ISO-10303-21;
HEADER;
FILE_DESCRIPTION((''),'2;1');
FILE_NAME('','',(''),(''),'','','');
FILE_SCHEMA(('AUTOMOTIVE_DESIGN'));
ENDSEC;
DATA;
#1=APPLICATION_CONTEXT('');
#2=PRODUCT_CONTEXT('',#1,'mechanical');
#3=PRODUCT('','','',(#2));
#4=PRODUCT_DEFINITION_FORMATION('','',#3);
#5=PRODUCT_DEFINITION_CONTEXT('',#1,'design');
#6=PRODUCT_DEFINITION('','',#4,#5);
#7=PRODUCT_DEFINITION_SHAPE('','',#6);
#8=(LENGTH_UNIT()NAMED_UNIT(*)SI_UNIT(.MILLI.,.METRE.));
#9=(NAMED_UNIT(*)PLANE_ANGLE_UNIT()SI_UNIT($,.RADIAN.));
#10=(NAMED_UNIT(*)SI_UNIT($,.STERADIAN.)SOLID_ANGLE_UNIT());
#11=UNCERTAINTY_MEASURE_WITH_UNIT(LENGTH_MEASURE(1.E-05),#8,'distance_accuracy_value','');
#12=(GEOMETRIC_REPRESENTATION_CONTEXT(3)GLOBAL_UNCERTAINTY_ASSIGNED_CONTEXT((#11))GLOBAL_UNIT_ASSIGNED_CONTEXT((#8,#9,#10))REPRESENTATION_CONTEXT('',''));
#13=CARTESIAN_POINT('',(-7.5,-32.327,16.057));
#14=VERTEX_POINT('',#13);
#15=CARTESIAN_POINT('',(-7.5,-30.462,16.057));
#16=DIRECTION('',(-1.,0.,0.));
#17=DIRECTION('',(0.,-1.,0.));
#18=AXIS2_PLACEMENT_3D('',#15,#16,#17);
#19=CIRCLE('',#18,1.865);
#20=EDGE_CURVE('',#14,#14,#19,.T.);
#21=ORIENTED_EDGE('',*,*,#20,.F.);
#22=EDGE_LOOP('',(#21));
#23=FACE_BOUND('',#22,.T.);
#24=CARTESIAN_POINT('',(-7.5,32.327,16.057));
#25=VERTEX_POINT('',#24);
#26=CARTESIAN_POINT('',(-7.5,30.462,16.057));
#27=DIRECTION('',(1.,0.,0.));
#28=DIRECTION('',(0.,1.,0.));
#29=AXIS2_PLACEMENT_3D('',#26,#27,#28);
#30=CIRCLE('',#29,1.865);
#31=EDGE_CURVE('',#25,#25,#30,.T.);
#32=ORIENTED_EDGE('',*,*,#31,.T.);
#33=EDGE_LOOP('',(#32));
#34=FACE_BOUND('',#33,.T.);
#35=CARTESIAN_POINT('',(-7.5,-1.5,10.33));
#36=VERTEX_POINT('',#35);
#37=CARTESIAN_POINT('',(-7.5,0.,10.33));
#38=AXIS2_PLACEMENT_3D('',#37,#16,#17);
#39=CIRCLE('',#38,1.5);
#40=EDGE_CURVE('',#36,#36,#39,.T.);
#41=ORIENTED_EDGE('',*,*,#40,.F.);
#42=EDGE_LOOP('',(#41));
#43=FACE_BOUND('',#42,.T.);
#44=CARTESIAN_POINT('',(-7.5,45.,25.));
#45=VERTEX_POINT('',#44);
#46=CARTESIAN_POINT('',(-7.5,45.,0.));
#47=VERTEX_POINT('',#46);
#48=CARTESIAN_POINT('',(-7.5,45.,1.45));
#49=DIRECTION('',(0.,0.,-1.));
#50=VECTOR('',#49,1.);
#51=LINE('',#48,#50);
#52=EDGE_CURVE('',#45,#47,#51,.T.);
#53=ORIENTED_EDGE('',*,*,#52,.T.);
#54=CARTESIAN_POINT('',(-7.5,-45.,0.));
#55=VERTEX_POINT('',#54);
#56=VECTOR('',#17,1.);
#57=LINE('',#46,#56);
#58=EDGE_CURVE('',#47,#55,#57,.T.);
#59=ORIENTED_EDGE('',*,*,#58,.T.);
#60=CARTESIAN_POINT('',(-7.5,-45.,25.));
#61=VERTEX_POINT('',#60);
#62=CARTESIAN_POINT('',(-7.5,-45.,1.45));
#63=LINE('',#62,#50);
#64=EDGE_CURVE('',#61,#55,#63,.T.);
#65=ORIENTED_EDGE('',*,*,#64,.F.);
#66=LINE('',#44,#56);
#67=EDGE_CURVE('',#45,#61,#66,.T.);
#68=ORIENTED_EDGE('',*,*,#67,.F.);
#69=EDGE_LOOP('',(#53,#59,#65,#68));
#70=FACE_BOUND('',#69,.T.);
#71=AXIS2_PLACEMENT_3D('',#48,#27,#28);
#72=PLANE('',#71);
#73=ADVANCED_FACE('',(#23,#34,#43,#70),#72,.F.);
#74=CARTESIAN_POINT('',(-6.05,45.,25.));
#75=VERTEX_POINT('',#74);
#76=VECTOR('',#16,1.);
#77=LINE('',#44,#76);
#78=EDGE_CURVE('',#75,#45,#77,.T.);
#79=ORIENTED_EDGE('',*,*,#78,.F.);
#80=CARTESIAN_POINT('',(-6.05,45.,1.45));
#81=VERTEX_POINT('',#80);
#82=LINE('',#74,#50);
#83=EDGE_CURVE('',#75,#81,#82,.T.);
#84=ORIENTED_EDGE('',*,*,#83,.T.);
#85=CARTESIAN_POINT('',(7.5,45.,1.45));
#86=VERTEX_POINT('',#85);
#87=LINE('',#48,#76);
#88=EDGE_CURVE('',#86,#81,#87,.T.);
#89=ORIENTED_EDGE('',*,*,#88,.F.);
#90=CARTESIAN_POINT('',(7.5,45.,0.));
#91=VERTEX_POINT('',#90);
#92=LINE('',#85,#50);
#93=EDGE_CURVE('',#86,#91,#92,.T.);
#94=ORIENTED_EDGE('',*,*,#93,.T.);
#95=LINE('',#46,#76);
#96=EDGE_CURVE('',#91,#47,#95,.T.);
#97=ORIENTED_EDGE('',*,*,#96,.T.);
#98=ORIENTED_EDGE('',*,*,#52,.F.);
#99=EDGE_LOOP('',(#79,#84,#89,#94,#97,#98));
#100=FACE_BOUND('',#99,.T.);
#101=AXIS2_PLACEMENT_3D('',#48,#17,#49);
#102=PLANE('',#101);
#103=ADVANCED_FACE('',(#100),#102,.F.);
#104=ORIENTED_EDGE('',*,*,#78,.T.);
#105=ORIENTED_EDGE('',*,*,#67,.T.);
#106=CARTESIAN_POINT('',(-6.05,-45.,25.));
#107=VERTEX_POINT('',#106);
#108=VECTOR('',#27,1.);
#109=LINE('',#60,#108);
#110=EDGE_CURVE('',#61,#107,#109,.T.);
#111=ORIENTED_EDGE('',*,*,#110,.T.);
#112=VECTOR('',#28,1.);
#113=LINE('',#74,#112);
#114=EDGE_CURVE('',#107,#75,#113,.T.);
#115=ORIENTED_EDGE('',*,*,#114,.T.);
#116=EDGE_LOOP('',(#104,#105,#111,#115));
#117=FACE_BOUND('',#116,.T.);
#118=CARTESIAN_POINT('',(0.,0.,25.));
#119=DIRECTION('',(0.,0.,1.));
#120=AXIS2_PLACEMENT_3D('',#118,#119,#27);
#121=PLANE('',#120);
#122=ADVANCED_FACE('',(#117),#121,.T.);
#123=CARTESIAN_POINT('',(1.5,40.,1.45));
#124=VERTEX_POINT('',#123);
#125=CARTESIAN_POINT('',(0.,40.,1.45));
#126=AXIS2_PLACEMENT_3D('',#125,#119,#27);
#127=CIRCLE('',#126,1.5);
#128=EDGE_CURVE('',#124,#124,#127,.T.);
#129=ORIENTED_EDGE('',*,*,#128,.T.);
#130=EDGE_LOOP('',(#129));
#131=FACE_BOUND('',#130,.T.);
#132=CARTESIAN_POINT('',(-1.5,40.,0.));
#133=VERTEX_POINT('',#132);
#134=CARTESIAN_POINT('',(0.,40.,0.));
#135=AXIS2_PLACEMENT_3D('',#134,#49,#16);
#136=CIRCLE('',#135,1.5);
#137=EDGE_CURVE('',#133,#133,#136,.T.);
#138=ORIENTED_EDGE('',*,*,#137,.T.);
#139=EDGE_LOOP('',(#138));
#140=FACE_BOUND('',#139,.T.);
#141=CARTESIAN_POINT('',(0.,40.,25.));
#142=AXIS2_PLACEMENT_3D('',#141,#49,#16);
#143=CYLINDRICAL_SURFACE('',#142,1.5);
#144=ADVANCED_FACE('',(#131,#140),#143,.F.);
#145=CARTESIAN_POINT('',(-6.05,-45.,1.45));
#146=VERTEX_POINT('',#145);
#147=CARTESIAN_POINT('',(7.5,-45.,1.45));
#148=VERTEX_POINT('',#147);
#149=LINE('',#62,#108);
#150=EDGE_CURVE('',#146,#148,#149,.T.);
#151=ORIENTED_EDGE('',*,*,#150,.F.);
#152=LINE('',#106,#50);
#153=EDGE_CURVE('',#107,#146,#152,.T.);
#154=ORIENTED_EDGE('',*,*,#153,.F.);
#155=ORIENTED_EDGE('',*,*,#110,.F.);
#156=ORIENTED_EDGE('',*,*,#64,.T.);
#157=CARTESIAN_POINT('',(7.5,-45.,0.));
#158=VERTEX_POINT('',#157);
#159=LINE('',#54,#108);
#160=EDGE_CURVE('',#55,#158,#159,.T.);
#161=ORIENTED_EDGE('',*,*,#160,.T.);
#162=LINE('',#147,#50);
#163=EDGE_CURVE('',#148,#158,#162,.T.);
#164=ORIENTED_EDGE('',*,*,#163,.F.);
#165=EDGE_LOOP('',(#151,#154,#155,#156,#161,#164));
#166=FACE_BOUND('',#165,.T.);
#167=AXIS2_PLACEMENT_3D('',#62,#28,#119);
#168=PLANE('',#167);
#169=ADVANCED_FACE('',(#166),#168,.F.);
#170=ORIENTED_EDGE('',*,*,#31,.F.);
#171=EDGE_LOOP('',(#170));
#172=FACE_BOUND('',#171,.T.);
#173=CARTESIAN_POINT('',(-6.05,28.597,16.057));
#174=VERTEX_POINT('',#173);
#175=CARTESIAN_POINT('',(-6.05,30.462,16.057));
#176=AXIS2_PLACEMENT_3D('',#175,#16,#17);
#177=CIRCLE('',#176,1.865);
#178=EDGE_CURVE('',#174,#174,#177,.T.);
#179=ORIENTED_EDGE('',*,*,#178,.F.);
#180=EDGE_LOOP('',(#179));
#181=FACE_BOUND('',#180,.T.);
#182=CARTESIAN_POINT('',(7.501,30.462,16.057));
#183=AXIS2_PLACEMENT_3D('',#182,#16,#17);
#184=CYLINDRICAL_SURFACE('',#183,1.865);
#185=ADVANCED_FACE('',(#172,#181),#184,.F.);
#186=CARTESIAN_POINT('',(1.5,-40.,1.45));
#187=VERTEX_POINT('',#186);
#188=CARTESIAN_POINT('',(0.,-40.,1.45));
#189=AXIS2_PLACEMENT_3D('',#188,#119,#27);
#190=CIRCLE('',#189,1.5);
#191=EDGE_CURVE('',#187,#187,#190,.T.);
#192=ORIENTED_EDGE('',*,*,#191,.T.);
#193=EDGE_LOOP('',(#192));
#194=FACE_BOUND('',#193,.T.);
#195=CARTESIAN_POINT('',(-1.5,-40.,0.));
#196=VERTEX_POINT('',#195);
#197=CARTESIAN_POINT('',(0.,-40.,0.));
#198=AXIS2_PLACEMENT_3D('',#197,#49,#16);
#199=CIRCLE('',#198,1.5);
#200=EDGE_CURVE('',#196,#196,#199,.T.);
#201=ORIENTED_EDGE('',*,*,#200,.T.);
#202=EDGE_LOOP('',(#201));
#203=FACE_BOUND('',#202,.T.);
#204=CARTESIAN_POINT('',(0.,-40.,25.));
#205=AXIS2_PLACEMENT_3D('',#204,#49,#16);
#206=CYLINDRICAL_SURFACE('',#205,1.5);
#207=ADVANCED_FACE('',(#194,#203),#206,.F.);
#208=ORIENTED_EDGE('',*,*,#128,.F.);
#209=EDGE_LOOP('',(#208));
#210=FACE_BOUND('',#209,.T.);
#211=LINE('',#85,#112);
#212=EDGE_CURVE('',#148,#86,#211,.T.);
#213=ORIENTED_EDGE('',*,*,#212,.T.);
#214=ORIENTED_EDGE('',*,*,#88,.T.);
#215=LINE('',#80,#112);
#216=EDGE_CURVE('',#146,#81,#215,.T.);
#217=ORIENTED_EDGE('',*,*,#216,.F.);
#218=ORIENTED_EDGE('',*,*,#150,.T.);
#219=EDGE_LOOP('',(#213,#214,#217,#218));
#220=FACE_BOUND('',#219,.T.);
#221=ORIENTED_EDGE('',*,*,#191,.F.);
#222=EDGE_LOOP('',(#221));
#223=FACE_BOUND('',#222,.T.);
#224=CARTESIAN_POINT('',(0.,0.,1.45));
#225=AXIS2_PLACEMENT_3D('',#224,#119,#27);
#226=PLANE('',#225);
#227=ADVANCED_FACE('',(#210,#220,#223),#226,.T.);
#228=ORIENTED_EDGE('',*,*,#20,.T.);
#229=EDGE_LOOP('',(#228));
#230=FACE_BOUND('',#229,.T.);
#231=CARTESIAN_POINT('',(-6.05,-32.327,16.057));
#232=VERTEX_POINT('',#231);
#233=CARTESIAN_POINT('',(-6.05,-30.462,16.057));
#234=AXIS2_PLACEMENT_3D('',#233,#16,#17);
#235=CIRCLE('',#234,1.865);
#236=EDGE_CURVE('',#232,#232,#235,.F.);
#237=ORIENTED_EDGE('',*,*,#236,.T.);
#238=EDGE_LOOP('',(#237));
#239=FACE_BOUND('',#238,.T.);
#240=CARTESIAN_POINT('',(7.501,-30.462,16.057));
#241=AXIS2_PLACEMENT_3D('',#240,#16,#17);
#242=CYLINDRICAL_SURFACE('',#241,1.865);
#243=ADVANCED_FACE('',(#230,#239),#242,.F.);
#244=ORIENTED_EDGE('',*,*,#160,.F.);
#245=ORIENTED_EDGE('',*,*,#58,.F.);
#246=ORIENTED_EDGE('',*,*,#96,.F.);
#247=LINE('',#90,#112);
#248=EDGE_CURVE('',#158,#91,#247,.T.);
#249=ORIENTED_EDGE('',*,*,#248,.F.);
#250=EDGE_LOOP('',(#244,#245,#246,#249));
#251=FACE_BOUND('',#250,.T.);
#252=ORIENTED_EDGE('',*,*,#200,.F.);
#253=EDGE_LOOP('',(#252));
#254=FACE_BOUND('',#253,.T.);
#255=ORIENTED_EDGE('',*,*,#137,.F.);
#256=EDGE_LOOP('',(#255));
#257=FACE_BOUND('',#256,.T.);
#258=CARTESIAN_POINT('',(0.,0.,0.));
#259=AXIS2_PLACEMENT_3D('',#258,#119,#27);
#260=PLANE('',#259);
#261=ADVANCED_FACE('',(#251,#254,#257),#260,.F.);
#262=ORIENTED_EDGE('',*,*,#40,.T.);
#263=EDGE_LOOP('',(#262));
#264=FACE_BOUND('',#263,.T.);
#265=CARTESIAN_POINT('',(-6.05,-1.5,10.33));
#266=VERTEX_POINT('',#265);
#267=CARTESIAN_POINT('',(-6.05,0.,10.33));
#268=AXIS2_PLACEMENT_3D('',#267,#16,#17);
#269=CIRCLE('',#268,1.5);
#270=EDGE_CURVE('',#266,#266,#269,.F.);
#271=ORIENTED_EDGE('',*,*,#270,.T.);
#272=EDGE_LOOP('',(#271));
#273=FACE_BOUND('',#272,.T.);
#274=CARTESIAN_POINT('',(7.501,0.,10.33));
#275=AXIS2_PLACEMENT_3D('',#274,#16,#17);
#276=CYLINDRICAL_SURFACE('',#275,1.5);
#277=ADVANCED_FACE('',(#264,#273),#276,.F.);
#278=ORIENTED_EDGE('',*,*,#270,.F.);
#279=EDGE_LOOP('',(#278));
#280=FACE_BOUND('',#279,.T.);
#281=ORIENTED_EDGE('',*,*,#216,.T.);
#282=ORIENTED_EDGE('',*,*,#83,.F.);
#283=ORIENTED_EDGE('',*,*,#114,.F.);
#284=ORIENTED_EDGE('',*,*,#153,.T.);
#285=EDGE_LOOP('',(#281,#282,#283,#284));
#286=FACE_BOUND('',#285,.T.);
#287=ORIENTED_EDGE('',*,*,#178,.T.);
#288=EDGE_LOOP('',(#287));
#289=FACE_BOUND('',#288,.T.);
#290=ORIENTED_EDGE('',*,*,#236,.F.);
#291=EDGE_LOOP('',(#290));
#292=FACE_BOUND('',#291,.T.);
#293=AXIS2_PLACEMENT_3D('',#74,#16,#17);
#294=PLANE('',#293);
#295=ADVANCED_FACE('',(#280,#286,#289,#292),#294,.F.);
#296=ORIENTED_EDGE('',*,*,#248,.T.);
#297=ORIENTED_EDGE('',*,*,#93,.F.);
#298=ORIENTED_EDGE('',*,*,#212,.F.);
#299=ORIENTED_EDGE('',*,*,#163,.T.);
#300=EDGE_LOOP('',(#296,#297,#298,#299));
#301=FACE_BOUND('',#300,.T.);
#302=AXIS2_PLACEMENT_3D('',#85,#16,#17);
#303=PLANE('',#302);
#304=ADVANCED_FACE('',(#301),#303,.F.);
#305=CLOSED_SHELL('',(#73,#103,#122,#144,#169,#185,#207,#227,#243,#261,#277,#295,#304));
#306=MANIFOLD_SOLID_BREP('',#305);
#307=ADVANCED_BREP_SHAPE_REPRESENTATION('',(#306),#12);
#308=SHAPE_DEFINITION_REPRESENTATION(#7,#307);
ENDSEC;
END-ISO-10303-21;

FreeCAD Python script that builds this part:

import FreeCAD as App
import Part
import Sketcher
from FreeCAD import Vector


def add_polygon(sketch, points):
    """Adds a closed chain of lines whose ends are joined by coincident constraints."""
    first, n = sketch.GeometryCount, len(points)
    for a, b in zip(points, points[1:] + points[:1]):
        sketch.addGeometry(Part.LineSegment(App.Vector(*a, 0), App.Vector(*b, 0)), False)
    for i in range(n):
        sketch.addConstraint(Sketcher.Constraint("Coincident", first + i, 2, first + (i + 1) % n, 1))

doc = App.newDocument("Part")
body = doc.addObject("PartDesign::Body", "Body")

# Sketch on XY plane
sketch1 = body.newObject("Sketcher::SketchObject", "Sketch")
sketch1.AttachmentSupport = (doc.getObject("XY_Plane"), [""])
sketch1.MapMode = "FlatFace"
add_polygon(sketch1, [(-8, 45), (-8, -45), (8, -45), (8, 45)])  # lines 0-3
sketch1.addConstraint(Sketcher.Constraint("Vertical", 0))
sketch1.addConstraint(Sketcher.Constraint("Horizontal", 1))
sketch1.addConstraint(Sketcher.Constraint("Vertical", 2))
sketch1.addConstraint(Sketcher.Constraint("Horizontal", 3))
sketch1.addConstraint(Sketcher.Constraint("Symmetric", 0, 2, 2, 2, -1, 1))
sketch1.addConstraint(Sketcher.Constraint("DistanceX", 1, 1, 1, 2, 15.0))
sketch1.addConstraint(Sketcher.Constraint("DistanceY", 0, 2, 0, 1, 90.0))
pad1 = body.newObject("PartDesign::Pad", "Pad")
pad1.Profile = sketch1
pad1.Length = 1.45

# Sketch on XY plane
sketch2 = body.newObject("Sketcher::SketchObject", "Sketch001")
sketch2.AttachmentSupport = (doc.getObject("XY_Plane"), [""])
sketch2.MapMode = "FlatFace"
sketch2.AttachmentOffset = App.Placement(Vector(0, 0, 1.45), App.Rotation())
add_polygon(sketch2, [(-7.5, 45), (-7.5, -45), (-6, -45), (-6, 45)])  # lines 0-3
sketch2.addConstraint(Sketcher.Constraint("Vertical", 0))
sketch2.addConstraint(Sketcher.Constraint("Horizontal", 1))
sketch2.addConstraint(Sketcher.Constraint("Vertical", 2))
sketch2.addConstraint(Sketcher.Constraint("Horizontal", 3))
sketch2.addConstraint(Sketcher.Constraint("DistanceY", 0, 2, 0, 1, 90.0))
sketch2.addConstraint(Sketcher.Constraint("DistanceY", 0, 2, -1, 1, 45.0))
sketch2.addConstraint(Sketcher.Constraint("DistanceX", 1, 1, 1, 2, 1.45))
sketch2.addConstraint(Sketcher.Constraint("DistanceX", 0, 2, -1, 1, 7.5))
pad2 = body.newObject("PartDesign::Pad", "Pad001")
pad2.Profile = sketch2
pad2.Length = 23.55

# Sketch on XY plane
sketch3 = body.newObject("Sketcher::SketchObject", "Sketch002")
sketch3.AttachmentSupport = (doc.getObject("XY_Plane"), [""])
sketch3.MapMode = "FlatFace"
sketch3.addGeometry(Part.Circle(Vector(0, 40, 0), Vector(0, 0, 1), 1.5), False)
sketch3.addGeometry(Part.Circle(Vector(0, -40, 0), Vector(0, 0, 1), 1.5), False)
sketch3.addConstraint(Sketcher.Constraint("Equal", 0, 1))
sketch3.addConstraint(Sketcher.Constraint("Symmetric", 0, 3, 1, 3, -1, 1))
sketch3.addConstraint(Sketcher.Constraint("PointOnObject", 0, 3, -2))
sketch3.addConstraint(Sketcher.Constraint("Diameter", 0, 3.0))
sketch3.addConstraint(Sketcher.Constraint("DistanceY", -1, 1, 0, 3, 40.0))
pocket1 = body.newObject("PartDesign::Pocket", "Pocket")
pocket1.Profile = sketch3
pocket1.Type = "ThroughAll"
pocket1.Reversed = True

# Sketch on YZ plane
sketch4 = body.newObject("Sketcher::SketchObject", "Sketch003")
sketch4.AttachmentSupport = (doc.getObject("YZ_Plane"), [""])
sketch4.MapMode = "FlatFace"
sketch4.AttachmentOffset = App.Placement(Vector(0, 0, -7.5), App.Rotation())
sketch4.addGeometry(Part.Circle(Vector(-30.5, 16.1, 0), Vector(0, 0, 1), 1.9), False)
sketch4.addConstraint(Sketcher.Constraint("Diameter", 0, 3.73))
sketch4.addConstraint(Sketcher.Constraint("DistanceX", 0, 3, -1, 1, 30.462))
sketch4.addConstraint(Sketcher.Constraint("DistanceY", -1, 1, 0, 3, 16.057))
pocket2 = body.newObject("PartDesign::Pocket", "Pocket001")
pocket2.Profile = sketch4
pocket2.Length = 1.45
pocket2.Reversed = True
doc.recompute()

mirrored = body.newObject("PartDesign::Mirrored", "Mirrored")
mirrored.Originals = [pocket2]
mirrored.MirrorPlane = (doc.getObject("XZ_Plane"), [""])
body.Tip = mirrored

# Sketch on YZ plane
sketch5 = body.newObject("Sketcher::SketchObject", "Sketch004")
sketch5.AttachmentSupport = (doc.getObject("YZ_Plane"), [""])
sketch5.MapMode = "FlatFace"
sketch5.AttachmentOffset = App.Placement(Vector(0, 0, -7.5), App.Rotation())
sketch5.addGeometry(Part.Circle(Vector(0, 10.3, 0), Vector(0, 0, 1), 1.5), False)
sketch5.addConstraint(Sketcher.Constraint("PointOnObject", 0, 3, -2))
sketch5.addConstraint(Sketcher.Constraint("Diameter", 0, 3.0))
sketch5.addConstraint(Sketcher.Constraint("DistanceY", -1, 1, 0, 3, 10.33))
pocket3 = body.newObject("PartDesign::Pocket", "Pocket002")
pocket3.Profile = sketch5
pocket3.Type = "UpToFirst"
pocket3.Reversed = True

doc.recompute()
